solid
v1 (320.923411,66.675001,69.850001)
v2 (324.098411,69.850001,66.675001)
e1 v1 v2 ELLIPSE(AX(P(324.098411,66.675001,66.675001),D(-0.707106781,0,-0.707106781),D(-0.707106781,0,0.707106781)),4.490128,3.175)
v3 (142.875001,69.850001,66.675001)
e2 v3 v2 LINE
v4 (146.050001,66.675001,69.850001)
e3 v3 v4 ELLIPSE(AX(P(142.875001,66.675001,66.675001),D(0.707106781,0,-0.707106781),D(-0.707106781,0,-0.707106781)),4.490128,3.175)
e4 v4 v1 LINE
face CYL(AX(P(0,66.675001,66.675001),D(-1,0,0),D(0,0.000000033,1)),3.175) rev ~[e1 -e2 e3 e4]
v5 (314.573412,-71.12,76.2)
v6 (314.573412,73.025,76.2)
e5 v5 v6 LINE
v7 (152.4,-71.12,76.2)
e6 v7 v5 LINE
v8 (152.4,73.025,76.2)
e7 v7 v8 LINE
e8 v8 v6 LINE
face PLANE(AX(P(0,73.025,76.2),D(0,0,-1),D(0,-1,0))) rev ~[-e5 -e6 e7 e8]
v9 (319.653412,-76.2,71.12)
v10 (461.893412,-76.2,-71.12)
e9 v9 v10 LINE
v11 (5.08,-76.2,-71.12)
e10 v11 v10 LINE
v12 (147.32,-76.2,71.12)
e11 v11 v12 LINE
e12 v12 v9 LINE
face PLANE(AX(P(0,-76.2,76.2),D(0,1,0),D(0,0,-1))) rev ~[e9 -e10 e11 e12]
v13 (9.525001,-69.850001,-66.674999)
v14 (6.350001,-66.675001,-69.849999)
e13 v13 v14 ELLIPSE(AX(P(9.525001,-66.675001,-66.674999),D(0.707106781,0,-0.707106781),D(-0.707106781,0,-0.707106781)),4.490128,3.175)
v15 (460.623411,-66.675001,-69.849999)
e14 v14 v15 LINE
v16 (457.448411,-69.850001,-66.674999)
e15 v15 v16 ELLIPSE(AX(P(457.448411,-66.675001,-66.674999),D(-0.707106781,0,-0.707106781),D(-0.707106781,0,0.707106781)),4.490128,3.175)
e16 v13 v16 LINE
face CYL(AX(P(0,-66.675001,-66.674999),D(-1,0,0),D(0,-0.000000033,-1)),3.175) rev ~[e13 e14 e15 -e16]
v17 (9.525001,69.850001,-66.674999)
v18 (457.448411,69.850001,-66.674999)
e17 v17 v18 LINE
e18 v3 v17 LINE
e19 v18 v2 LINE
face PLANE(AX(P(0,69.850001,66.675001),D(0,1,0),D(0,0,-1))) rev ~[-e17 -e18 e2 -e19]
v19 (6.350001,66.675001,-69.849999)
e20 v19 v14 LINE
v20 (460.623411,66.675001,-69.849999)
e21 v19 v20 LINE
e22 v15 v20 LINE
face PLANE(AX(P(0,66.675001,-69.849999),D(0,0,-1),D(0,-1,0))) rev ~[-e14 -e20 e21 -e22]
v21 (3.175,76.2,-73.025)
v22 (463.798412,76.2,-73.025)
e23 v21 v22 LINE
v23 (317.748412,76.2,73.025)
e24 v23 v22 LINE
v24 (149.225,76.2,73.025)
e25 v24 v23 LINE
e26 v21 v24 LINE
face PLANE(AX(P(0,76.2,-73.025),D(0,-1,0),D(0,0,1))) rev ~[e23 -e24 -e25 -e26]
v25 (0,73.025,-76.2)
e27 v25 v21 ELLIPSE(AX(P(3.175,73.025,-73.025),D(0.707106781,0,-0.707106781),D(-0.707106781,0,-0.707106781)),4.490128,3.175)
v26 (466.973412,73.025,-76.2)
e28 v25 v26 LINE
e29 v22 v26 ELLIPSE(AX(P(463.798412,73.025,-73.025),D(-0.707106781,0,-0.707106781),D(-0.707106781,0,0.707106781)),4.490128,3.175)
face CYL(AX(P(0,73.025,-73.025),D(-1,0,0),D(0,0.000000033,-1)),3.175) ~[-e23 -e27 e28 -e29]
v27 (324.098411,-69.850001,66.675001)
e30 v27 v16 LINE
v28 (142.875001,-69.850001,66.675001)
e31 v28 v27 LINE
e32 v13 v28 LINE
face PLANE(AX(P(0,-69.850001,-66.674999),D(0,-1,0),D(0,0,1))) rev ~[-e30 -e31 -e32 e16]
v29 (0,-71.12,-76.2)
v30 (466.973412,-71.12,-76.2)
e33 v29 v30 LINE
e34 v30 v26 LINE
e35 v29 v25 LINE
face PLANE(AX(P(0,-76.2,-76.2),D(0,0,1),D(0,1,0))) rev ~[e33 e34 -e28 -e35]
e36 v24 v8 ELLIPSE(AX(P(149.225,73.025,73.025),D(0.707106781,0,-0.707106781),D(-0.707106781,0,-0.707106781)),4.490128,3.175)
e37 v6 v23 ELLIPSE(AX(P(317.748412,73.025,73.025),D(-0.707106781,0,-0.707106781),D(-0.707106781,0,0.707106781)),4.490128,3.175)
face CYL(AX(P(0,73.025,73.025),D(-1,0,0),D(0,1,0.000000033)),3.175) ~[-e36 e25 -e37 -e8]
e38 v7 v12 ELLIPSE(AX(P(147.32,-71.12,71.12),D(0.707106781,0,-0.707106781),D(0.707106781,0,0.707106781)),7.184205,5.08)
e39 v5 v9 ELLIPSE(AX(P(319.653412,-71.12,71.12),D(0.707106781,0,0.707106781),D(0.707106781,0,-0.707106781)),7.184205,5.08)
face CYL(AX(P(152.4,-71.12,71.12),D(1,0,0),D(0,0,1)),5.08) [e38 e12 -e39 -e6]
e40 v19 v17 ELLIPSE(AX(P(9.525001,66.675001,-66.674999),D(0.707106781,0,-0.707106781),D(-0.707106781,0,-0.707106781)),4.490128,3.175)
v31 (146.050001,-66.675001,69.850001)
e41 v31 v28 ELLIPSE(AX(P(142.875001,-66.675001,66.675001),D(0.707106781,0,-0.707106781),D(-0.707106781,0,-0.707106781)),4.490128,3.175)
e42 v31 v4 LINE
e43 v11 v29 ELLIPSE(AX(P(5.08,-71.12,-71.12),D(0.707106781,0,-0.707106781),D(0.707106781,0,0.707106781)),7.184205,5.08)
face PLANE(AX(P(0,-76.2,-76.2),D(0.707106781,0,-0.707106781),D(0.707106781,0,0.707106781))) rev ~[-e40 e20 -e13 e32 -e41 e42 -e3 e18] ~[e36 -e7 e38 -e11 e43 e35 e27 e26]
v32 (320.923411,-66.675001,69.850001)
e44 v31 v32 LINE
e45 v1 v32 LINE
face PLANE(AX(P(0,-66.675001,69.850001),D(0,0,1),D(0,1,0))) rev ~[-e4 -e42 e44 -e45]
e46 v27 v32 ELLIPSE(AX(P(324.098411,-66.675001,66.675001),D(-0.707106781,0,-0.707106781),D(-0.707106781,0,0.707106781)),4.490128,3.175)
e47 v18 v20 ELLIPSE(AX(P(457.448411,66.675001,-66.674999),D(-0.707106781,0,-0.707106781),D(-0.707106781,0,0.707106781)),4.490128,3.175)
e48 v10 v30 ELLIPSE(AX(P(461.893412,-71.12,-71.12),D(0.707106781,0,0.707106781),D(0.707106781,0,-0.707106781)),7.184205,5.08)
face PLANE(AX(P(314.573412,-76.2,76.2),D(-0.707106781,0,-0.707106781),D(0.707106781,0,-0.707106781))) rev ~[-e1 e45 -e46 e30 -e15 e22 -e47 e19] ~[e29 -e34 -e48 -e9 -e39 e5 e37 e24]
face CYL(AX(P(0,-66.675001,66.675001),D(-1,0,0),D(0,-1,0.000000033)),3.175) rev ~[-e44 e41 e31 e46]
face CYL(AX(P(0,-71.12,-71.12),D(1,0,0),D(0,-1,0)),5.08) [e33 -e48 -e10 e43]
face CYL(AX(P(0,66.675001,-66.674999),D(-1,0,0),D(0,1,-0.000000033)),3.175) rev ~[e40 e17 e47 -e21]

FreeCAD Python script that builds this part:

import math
import FreeCAD as App
import Part
import Sketcher
Q = App.Units.Quantity


def edges_at(feature, points):
    """Names of the edges that pass closest to the given points."""
    edges = feature.Shape.Edges
    near = lambda p: min(range(len(edges)), key=lambda i: edges[i].distToShape(Part.Vertex(*p))[0])
    return sorted({f"Edge{near(p) + 1}" for p in points})

doc = App.newDocument("Part")
params = doc.addObject("Spreadsheet::Sheet", "Params")
for row, (alias, value) in enumerate([
    ("sketch1_height", "6 in"),
    ("sketch1_radius", "0.125 in"),
    ("sketch1_width", "5.2500001 in"),
    ("pad1_length", "466.973412 mm"),
    ("sketch2_width", "6 in"),
    ("fillet_radius", "0.2 in"),
], start=1):
    params.set(f"A{row}", alias)
    params.set(f"B{row}", "=" + value)
    params.setAlias(f"B{row}", alias)

body = doc.addObject("PartDesign::Body", "Body")

# Sketch on YZ plane
sketch1 = body.newObject("Sketcher::SketchObject", "Sketch")
sketch1.AttachmentSupport = (doc.getObject("YZ_Plane"), [""])
sketch1.MapMode = "FlatFace"
sketch1.addGeometry([
    Part.LineSegment(App.Vector(73, 76.2, 0), App.Vector(-76.2, 76.2, 0)),  # 0
    Part.LineSegment(App.Vector(-76.2, 76.2, 0), App.Vector(-76.2, -76.2, 0)),  # 1
    Part.LineSegment(App.Vector(-76.2, -76.2, 0), App.Vector(73, -76.2, 0)),  # 2
    Part.ArcOfCircle(Part.Circle(App.Vector(73, -73, 0), App.Vector(0, 0, 1), 3.2), math.radians(-90), math.radians(0)),  # 3
    Part.LineSegment(App.Vector(76.2, -73, 0), App.Vector(76.2, 73, 0)),  # 4
    Part.ArcOfCircle(Part.Circle(App.Vector(73, 73, 0), App.Vector(0, 0, 1), 3.2), math.radians(0), math.radians(90)),  # 5
    Part.ArcOfCircle(Part.Circle(App.Vector(-66.7, -66.7, 0), App.Vector(0, 0, 1), 3.2), math.radians(-180), math.radians(-90)),  # 6
    Part.LineSegment(App.Vector(-69.9, -66.7, 0), App.Vector(-69.9, 66.7, 0)),  # 7
    Part.ArcOfCircle(Part.Circle(App.Vector(-66.7, 66.7, 0), App.Vector(0, 0, 1), 3.2), math.radians(90), math.radians(180)),  # 8
    Part.LineSegment(App.Vector(-66.7, 69.9, 0), App.Vector(66.7, 69.9, 0)),  # 9
    Part.ArcOfCircle(Part.Circle(App.Vector(66.7, 66.7, 0), App.Vector(0, 0, 1), 3.2), math.radians(0), math.radians(90)),  # 10
    Part.LineSegment(App.Vector(69.9, 66.7, 0), App.Vector(69.9, -66.7, 0)),  # 11
    Part.ArcOfCircle(Part.Circle(App.Vector(66.7, -66.7, 0), App.Vector(0, 0, 1), 3.2), math.radians(-90), math.radians(0)),  # 12
    Part.LineSegment(App.Vector(66.7, -69.8, 0), App.Vector(-66.7, -69.8, 0)),  # 13
], False)
sketch1.addConstraint([
    Sketcher.Constraint("Coincident", 0, 2, 1, 1),
    Sketcher.Constraint("Coincident", 1, 2, 2, 1),
    Sketcher.Constraint("Tangent", 2, 2, 3, 1),
    Sketcher.Constraint("Tangent", 3, 2, 4, 1),
    Sketcher.Constraint("Tangent", 4, 2, 5, 1),
    Sketcher.Constraint("Tangent", 5, 2, 0, 1),
    Sketcher.Constraint("Tangent", 6, 1, 7, 1),
    Sketcher.Constraint("Tangent", 7, 2, 8, 2),
    Sketcher.Constraint("Tangent", 8, 1, 9, 1),
    Sketcher.Constraint("Tangent", 9, 2, 10, 2),
    Sketcher.Constraint("Tangent", 10, 1, 11, 1),
    Sketcher.Constraint("Tangent", 11, 2, 12, 2),
    Sketcher.Constraint("Tangent", 12, 1, 13, 1),
    Sketcher.Constraint("Tangent", 13, 2, 6, 2),
    Sketcher.Constraint("Horizontal", 0),
    Sketcher.Constraint("Vertical", 1),
    Sketcher.Constraint("Horizontal", 2),
    Sketcher.Constraint("Vertical", 4),
    Sketcher.Constraint("Vertical", 7),
    Sketcher.Constraint("Horizontal", 9),
    Sketcher.Constraint("Vertical", 11),
    Sketcher.Constraint("Horizontal", 13),
    Sketcher.Constraint("Equal", 3, 5),
    Sketcher.Constraint("Equal", 5, 6),
    Sketcher.Constraint("Equal", 6, 8),
    Sketcher.Constraint("Equal", 8, 10),
    Sketcher.Constraint("Equal", 10, 12),
    Sketcher.Constraint("Symmetric", 6, 3, 10, 3, -1, 1),
    Sketcher.Constraint("Equal", 13, 7),
    Sketcher.Constraint("DistanceY", 1, 2, 1, 1, Q("6 in")),
    Sketcher.Constraint("DistanceX", 0, 2, -1, 1, Q("3 in")),
    Sketcher.Constraint("DistanceY", -1, 1, 0, 2, Q("3 in")),
    Sketcher.Constraint("DistanceX", -1, 1, 3, 2, Q("3 in")),
    Sketcher.Constraint("Radius", 3, Q("0.125 in")),
    Sketcher.Constraint("DistanceX", 9, 1, 9, 2, Q("5.2500001 in")),
])
sketch1.setExpression("Constraints[29]", "Params.sketch1_height")
sketch1.setExpression("Constraints[33]", "Params.sketch1_radius")
sketch1.setExpression("Constraints[34]", "Params.sketch1_width")
pad1 = body.newObject("PartDesign::Pad", "Pad")
pad1.Profile = sketch1
pad1.setExpression("Length", "Params.pad1_length")

# Sketch on XZ plane
sketch2 = body.newObject("Sketcher::SketchObject", "Sketch001")
sketch2.AttachmentSupport = (doc.getObject("XZ_Plane"), [""])
sketch2.MapMode = "FlatFace"
sketch2.AttachmentOffset = App.Placement(App.Vector(0, 0, 3 * 25.4), App.Rotation())
sketch2.addGeometry([
    Part.LineSegment(App.Vector(0, 76, 0), App.Vector(0, -76, 0)),  # 0
    Part.LineSegment(App.Vector(0, -76, 0), App.Vector(152, 76, 0)),  # 1
    Part.LineSegment(App.Vector(152, 76, 0), App.Vector(0, 76, 0)),  # 2
    Part.LineSegment(App.Vector(315, 76, 0), App.Vector(467, -76, 0)),  # 3
    Part.LineSegment(App.Vector(467, -76, 0), App.Vector(467, 76, 0)),  # 4
    Part.LineSegment(App.Vector(467, 76, 0), App.Vector(315, 76, 0)),  # 5
], False)
sketch2.addConstraint([
    Sketcher.Constraint("Coincident", 0, 2, 1, 1),
    Sketcher.Constraint("Coincident", 1, 2, 2, 1),
    Sketcher.Constraint("Coincident", 2, 2, 0, 1),
    Sketcher.Constraint("Coincident", 3, 2, 4, 1),
    Sketcher.Constraint("Coincident", 4, 2, 5, 1),
    Sketcher.Constraint("Coincident", 5, 2, 3, 1),
    Sketcher.Constraint("Vertical", 0),
    Sketcher.Constraint("Horizontal", 2),
    Sketcher.Constraint("Vertical", 4),
    Sketcher.Constraint("Horizontal", 5),
    Sketcher.Constraint("Symmetric", 0, 2, 2, 2, -1, 1),
    Sketcher.Constraint("Perpendicular", 1, 3),
    Sketcher.Constraint("Horizontal", 0, 2, 3, 2),
    Sketcher.Constraint("Horizontal", 2, 2, 4, 2),
    Sketcher.Constraint("Equal", 2, 5),
    Sketcher.Constraint("DistanceX", 2, 2, 2, 1, Q("6 in")),
    Sketcher.Constraint("DistanceX", -1, 1, 3, 2, Q("466.973412 mm")),
])
sketch2.setExpression("Constraints[15]", "Params.sketch2_width")
pocket1 = body.newObject("PartDesign::Pocket", "Pocket")
pocket1.Profile = sketch2
pocket1.Type = "ThroughAll"
doc.recompute()

fillet = body.newObject("PartDesign::Fillet", "Fillet")
fillet.Base = (pocket1, edges_at(pocket1, [(233.487, -76.2, 76.2), (233.487, -76.2, -76.2)]))
fillet.setExpression("Radius", "Params.fillet_radius")

doc.recompute()
